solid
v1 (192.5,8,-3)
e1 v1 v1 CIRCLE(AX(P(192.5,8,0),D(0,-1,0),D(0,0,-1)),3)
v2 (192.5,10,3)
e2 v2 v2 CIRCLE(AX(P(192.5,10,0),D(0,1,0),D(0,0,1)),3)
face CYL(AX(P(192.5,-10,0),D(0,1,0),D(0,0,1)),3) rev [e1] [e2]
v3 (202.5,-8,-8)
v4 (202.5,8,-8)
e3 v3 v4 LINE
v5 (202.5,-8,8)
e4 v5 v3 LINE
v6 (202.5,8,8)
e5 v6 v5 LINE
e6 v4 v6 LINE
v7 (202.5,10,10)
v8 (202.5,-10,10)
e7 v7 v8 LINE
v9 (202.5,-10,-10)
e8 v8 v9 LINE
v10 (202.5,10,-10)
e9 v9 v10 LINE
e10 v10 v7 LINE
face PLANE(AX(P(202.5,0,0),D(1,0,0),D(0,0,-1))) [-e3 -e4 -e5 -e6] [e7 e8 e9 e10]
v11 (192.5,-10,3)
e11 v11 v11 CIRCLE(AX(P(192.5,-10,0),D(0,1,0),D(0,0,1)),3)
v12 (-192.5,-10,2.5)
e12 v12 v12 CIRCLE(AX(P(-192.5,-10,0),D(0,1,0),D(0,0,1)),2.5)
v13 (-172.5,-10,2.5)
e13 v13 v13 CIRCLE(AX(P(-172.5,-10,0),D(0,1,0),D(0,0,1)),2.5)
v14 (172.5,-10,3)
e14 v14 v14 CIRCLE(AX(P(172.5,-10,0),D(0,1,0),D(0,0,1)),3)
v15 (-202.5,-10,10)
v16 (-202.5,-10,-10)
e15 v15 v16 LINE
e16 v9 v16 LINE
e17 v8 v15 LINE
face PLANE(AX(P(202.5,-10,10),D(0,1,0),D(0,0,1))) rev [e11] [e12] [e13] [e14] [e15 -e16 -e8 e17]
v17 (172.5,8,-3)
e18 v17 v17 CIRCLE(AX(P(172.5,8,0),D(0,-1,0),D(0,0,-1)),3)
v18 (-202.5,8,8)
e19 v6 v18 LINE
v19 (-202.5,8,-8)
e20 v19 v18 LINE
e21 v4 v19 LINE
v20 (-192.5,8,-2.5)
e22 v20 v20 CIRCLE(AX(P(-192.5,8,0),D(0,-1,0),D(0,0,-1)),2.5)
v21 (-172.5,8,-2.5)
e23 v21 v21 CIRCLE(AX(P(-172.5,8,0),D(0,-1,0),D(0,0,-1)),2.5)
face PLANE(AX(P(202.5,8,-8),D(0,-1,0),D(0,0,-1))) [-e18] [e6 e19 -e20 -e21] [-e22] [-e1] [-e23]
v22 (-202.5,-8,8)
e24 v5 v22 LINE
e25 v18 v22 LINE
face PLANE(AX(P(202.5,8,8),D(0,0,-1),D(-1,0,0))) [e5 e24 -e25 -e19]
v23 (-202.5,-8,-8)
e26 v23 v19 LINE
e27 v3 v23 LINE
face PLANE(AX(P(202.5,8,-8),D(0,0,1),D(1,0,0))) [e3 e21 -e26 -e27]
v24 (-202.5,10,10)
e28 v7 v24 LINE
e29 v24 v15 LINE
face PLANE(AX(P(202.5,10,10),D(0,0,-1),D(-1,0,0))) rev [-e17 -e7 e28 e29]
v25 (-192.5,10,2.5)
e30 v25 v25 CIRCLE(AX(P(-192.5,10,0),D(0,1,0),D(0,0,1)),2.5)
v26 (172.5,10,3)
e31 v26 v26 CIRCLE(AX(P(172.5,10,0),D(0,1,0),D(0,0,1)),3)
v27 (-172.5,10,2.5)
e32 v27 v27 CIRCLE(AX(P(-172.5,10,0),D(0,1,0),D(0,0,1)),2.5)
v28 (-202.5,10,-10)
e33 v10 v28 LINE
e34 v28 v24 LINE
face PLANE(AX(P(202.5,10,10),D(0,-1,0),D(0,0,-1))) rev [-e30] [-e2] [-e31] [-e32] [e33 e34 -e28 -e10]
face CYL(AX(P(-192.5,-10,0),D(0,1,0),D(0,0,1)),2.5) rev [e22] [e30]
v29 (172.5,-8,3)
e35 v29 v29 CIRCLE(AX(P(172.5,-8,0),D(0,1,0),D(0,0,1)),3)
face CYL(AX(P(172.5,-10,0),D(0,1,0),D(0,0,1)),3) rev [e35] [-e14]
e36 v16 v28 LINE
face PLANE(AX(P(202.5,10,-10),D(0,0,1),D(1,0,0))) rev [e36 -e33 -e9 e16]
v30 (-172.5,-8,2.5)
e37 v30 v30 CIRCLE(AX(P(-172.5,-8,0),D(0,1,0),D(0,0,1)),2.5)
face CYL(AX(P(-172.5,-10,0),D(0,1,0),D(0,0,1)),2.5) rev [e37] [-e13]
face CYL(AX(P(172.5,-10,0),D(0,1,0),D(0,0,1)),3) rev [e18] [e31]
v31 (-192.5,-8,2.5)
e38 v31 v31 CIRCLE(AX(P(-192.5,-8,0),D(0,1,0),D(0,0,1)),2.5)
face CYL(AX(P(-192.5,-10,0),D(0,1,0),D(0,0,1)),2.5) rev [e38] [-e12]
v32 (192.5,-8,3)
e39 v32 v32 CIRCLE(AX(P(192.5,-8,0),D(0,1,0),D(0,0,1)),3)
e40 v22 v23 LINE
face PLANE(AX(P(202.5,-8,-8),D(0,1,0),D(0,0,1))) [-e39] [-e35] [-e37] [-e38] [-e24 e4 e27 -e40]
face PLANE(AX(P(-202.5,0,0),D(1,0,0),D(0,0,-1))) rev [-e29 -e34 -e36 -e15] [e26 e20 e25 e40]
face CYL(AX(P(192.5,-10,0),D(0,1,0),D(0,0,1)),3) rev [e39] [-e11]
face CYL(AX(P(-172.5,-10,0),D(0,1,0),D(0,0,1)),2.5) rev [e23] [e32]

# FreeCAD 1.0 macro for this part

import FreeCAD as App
import Part
import Sketcher
from FreeCAD import Vector


def add_polygon(sketch, points):
    """Adds a closed chain of lines whose ends are joined by coincident constraints."""
    first, n = sketch.GeometryCount, len(points)
    for a, b in zip(points, points[1:] + points[:1]):
        sketch.addGeometry(Part.LineSegment(App.Vector(*a, 0), App.Vector(*b, 0)), False)
    for i in range(n):
        sketch.addConstraint(Sketcher.Constraint("Coincident", first + i, 2, first + (i + 1) % n, 1))

doc = App.newDocument("Part")
body = doc.addObject("PartDesign::Body", "Body")

# Sketch on YZ plane
sketch1 = doc.addObject("Sketcher::SketchObject", "Sketch")
body.addObject(sketch1)
sketch1.AttachmentSupport = (doc.YZ_Plane, [""])
sketch1.MapMode = "FlatFace"
add_polygon(sketch1, [(10, 10), (-10, 10), (-10, -10), (10, -10)])  # lines 0-3
add_polygon(sketch1, [(-8, -8), (-8, 8), (8, 8), (8, -8)])  # lines 4-7
sketch1.addConstraint(Sketcher.Constraint("Horizontal", 0))
sketch1.addConstraint(Sketcher.Constraint("Vertical", 1))
sketch1.addConstraint(Sketcher.Constraint("Horizontal", 2))
sketch1.addConstraint(Sketcher.Constraint("Vertical", 3))
sketch1.addConstraint(Sketcher.Constraint("Vertical", 4))
sketch1.addConstraint(Sketcher.Constraint("Horizontal", 5))
sketch1.addConstraint(Sketcher.Constraint("Vertical", 6))
sketch1.addConstraint(Sketcher.Constraint("Horizontal", 7))
sketch1.addConstraint(Sketcher.Constraint("Symmetric", 0, 2, 2, 2, -1, 1))
sketch1.addConstraint(Sketcher.Constraint("Symmetric", 4, 2, 6, 2, -1, 1))
sketch1.addConstraint(Sketcher.Constraint("Equal", 2, 1))
sketch1.addConstraint(Sketcher.Constraint("Equal", 7, 4))
sketch1.addConstraint(Sketcher.Constraint("DistanceX", 0, 2, 0, 1, 20.0))
sketch1.addConstraint(Sketcher.Constraint("DistanceX", 5, 1, 5, 2, 16.0))
pad1 = doc.addObject("PartDesign::Pad", "Pad")
body.addObject(pad1)
pad1.Profile = sketch1
pad1.Length = 405
pad1.Midplane = True

# Sketch on XZ plane
sketch2 = doc.addObject("Sketcher::SketchObject", "Sketch001")
body.addObject(sketch2)
sketch2.AttachmentSupport = (doc.XZ_Plane, [""])
sketch2.MapMode = "FlatFace"
sketch2.AttachmentOffset = App.Placement(Vector(0, 0, -10), App.Rotation())
sketch2.addGeometry(Part.Circle(Vector(192.5, 0, 0), Vector(0, 0, 1), 3), False)
sketch2.addGeometry(Part.Circle(Vector(172.5, 0, 0), Vector(0, 0, 1), 3), False)
sketch2.addConstraint(Sketcher.Constraint("Equal", 0, 1))
sketch2.addConstraint(Sketcher.Constraint("PointOnObject", 0, 3, -1))
sketch2.addConstraint(Sketcher.Constraint("PointOnObject", 1, 3, -1))
sketch2.addConstraint(Sketcher.Constraint("Diameter", 0, 6.0))
sketch2.addConstraint(Sketcher.Constraint("DistanceX", 1, 3, 0, 3, 20.0))
sketch2.addConstraint(Sketcher.Constraint("DistanceX", -1, 1, 0, 3, 192.5))
pocket1 = doc.addObject("PartDesign::Pocket", "Pocket")
body.addObject(pocket1)
pocket1.Profile = sketch2
pocket1.Type = "ThroughAll"
pocket1.Reversed = True

# Sketch on XZ plane
sketch3 = doc.addObject("Sketcher::SketchObject", "Sketch002")
body.addObject(sketch3)
sketch3.AttachmentSupport = (doc.XZ_Plane, [""])
sketch3.MapMode = "FlatFace"
sketch3.AttachmentOffset = App.Placement(Vector(0, 0, -10), App.Rotation())
sketch3.addGeometry(Part.Circle(Vector(-192.5, 0, 0), Vector(0, 0, 1), 2.5), False)
sketch3.addGeometry(Part.Circle(Vector(-172.5, 0, 0), Vector(0, 0, 1), 2.5), False)
sketch3.addConstraint(Sketcher.Constraint("Equal", 0, 1))
sketch3.addConstraint(Sketcher.Constraint("PointOnObject", 0, 3, -1))
sketch3.addConstraint(Sketcher.Constraint("PointOnObject", 1, 3, -1))
sketch3.addConstraint(Sketcher.Constraint("Diameter", 0, 5.0))
sketch3.addConstraint(Sketcher.Constraint("DistanceX", 0, 3, 1, 3, 20.0))
sketch3.addConstraint(Sketcher.Constraint("DistanceX", 0, 3, -1, 1, 192.5))
pocket2 = doc.addObject("PartDesign::Pocket", "Pocket001")
body.addObject(pocket2)
pocket2.Profile = sketch3
pocket2.Type = "ThroughAll"
pocket2.Reversed = True

doc.recompute()
